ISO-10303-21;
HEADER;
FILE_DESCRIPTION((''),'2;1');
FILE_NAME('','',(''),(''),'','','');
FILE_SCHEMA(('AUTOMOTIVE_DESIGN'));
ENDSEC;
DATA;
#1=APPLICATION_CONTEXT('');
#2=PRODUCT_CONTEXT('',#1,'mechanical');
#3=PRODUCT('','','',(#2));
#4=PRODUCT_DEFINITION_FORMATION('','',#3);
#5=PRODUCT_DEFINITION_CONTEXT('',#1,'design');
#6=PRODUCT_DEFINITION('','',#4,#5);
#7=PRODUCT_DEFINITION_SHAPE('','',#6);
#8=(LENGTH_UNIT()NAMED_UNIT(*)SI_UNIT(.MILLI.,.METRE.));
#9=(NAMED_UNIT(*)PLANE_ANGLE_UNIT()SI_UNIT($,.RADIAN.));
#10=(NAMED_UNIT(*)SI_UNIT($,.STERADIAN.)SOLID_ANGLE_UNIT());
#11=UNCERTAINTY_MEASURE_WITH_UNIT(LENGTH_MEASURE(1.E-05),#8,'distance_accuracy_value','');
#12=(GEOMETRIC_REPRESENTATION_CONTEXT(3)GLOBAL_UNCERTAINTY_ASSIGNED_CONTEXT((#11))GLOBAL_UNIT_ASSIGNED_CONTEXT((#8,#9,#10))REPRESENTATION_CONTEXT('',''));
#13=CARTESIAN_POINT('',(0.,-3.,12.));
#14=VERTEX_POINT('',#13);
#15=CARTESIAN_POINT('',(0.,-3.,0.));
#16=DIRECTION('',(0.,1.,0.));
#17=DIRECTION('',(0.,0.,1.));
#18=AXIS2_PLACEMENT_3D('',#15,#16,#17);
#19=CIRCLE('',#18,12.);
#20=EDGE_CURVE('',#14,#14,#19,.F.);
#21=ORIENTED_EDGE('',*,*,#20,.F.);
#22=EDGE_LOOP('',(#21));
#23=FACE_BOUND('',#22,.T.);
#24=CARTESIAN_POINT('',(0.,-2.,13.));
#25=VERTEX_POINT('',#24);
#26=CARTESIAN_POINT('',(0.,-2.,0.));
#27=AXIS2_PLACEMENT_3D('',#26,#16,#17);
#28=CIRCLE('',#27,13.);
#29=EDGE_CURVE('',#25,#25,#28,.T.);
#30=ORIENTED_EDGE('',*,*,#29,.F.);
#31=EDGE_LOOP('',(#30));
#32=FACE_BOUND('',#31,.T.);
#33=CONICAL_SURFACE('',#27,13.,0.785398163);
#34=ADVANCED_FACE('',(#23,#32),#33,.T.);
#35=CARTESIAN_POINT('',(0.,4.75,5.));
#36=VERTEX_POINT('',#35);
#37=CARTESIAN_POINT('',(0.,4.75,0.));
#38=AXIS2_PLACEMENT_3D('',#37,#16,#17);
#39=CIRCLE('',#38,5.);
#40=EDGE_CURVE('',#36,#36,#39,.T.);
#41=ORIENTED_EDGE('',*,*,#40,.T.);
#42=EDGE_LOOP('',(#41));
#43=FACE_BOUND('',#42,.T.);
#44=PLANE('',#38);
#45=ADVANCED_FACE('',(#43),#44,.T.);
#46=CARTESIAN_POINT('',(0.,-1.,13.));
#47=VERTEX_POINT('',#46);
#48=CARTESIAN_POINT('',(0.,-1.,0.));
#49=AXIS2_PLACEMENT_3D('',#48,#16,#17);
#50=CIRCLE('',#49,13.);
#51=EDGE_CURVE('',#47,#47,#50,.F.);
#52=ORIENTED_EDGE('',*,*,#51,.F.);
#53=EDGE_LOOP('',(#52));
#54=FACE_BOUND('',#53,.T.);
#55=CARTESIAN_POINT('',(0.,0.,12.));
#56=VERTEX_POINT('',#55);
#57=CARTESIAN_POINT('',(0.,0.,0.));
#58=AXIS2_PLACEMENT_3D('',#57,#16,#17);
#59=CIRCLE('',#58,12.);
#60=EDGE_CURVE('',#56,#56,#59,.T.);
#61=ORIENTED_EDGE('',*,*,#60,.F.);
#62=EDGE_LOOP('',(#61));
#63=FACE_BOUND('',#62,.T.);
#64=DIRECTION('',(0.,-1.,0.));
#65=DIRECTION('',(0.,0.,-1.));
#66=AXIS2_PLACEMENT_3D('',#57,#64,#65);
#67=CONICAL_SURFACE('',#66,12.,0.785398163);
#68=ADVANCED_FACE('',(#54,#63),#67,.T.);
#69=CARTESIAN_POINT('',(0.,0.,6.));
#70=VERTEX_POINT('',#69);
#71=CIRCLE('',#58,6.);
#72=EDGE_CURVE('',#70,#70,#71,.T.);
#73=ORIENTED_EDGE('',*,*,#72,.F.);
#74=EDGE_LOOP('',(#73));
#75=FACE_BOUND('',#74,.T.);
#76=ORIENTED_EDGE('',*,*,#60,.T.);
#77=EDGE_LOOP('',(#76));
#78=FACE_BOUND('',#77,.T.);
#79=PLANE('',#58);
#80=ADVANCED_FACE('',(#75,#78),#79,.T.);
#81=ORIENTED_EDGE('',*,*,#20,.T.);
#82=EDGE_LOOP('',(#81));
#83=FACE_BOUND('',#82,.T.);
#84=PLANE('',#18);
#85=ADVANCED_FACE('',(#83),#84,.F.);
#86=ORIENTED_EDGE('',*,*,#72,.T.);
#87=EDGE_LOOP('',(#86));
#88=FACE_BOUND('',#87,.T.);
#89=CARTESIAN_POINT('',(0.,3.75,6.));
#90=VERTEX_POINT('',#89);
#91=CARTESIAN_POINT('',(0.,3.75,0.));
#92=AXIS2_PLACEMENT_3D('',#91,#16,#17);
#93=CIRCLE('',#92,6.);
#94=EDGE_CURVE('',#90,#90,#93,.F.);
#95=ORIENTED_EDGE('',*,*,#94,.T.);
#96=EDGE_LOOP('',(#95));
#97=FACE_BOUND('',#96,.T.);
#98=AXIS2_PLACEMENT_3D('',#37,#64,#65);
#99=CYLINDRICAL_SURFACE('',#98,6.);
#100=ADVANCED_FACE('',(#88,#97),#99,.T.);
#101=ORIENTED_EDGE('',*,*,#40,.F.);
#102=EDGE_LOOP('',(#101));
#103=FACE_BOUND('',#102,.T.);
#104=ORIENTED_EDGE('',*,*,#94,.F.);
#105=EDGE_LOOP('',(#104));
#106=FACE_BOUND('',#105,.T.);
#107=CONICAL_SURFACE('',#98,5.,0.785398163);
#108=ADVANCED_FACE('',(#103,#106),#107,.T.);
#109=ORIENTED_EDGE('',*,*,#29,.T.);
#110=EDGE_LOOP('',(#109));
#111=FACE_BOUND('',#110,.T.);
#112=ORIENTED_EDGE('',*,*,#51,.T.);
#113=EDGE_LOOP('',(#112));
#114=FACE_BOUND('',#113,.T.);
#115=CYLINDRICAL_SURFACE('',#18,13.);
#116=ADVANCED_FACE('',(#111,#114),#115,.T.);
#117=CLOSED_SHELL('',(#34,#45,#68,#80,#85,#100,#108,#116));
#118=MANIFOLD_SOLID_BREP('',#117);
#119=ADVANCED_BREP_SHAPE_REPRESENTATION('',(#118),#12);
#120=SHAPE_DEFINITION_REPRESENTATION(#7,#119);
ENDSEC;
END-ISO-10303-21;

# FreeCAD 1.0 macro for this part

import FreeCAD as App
import Part
import Sketcher
Q = App.Units.Quantity


def edges_at(feature, points):
    """Names of the edges that pass closest to the given points."""
    edges = feature.Shape.Edges
    near = lambda p: min(range(len(edges)), key=lambda i: edges[i].distToShape(Part.Vertex(*p))[0])
    return sorted({f"Edge{near(p) + 1}" for p in points})

doc = App.newDocument("Part")
body = doc.addObject("PartDesign::Body", "Body")

# Sketch on XZ plane
sketch1 = body.newObject("Sketcher::SketchObject", "Sketch")
sketch1.AttachmentSupport = (doc.getObject("XZ_Plane"), [""])
sketch1.MapMode = "FlatFace"
sketch1.addGeometry(Part.Circle(App.Vector(0, 0, 0), App.Vector(0, 0, 1), 6), False)
sketch1.addConstraint([
    Sketcher.Constraint("Coincident", 0, 3, -1, 1),
    Sketcher.Constraint("Diameter", 0, Q("12 mm")),
])
pad1 = body.newObject("PartDesign::Pad", "Pad")
pad1.Profile = sketch1
pad1.Length = 4.75
pad1.Reversed = True

# Sketch on XZ plane
sketch2 = body.newObject("Sketcher::SketchObject", "Sketch001")
sketch2.AttachmentSupport = (doc.getObject("XZ_Plane"), [""])
sketch2.MapMode = "FlatFace"
sketch2.addGeometry(Part.Circle(App.Vector(0, 0, 0), App.Vector(0, 0, 1), 13), False)
sketch2.addConstraint([
    Sketcher.Constraint("Coincident", 0, 3, -1, 1),
    Sketcher.Constraint("Diameter", 0, Q("26 mm")),
])
pad2 = body.newObject("PartDesign::Pad", "Pad001")
pad2.Profile = sketch2
pad2.Length = 3
doc.recompute()

chamfer = body.newObject("PartDesign::Chamfer", "Chamfer")
chamfer.Base = (pad2, edges_at(pad2, [(-6, 4.75, 0), (-13, -3, 0), (-13, 0, 0)]))
chamfer.Size = 1

doc.recompute()
